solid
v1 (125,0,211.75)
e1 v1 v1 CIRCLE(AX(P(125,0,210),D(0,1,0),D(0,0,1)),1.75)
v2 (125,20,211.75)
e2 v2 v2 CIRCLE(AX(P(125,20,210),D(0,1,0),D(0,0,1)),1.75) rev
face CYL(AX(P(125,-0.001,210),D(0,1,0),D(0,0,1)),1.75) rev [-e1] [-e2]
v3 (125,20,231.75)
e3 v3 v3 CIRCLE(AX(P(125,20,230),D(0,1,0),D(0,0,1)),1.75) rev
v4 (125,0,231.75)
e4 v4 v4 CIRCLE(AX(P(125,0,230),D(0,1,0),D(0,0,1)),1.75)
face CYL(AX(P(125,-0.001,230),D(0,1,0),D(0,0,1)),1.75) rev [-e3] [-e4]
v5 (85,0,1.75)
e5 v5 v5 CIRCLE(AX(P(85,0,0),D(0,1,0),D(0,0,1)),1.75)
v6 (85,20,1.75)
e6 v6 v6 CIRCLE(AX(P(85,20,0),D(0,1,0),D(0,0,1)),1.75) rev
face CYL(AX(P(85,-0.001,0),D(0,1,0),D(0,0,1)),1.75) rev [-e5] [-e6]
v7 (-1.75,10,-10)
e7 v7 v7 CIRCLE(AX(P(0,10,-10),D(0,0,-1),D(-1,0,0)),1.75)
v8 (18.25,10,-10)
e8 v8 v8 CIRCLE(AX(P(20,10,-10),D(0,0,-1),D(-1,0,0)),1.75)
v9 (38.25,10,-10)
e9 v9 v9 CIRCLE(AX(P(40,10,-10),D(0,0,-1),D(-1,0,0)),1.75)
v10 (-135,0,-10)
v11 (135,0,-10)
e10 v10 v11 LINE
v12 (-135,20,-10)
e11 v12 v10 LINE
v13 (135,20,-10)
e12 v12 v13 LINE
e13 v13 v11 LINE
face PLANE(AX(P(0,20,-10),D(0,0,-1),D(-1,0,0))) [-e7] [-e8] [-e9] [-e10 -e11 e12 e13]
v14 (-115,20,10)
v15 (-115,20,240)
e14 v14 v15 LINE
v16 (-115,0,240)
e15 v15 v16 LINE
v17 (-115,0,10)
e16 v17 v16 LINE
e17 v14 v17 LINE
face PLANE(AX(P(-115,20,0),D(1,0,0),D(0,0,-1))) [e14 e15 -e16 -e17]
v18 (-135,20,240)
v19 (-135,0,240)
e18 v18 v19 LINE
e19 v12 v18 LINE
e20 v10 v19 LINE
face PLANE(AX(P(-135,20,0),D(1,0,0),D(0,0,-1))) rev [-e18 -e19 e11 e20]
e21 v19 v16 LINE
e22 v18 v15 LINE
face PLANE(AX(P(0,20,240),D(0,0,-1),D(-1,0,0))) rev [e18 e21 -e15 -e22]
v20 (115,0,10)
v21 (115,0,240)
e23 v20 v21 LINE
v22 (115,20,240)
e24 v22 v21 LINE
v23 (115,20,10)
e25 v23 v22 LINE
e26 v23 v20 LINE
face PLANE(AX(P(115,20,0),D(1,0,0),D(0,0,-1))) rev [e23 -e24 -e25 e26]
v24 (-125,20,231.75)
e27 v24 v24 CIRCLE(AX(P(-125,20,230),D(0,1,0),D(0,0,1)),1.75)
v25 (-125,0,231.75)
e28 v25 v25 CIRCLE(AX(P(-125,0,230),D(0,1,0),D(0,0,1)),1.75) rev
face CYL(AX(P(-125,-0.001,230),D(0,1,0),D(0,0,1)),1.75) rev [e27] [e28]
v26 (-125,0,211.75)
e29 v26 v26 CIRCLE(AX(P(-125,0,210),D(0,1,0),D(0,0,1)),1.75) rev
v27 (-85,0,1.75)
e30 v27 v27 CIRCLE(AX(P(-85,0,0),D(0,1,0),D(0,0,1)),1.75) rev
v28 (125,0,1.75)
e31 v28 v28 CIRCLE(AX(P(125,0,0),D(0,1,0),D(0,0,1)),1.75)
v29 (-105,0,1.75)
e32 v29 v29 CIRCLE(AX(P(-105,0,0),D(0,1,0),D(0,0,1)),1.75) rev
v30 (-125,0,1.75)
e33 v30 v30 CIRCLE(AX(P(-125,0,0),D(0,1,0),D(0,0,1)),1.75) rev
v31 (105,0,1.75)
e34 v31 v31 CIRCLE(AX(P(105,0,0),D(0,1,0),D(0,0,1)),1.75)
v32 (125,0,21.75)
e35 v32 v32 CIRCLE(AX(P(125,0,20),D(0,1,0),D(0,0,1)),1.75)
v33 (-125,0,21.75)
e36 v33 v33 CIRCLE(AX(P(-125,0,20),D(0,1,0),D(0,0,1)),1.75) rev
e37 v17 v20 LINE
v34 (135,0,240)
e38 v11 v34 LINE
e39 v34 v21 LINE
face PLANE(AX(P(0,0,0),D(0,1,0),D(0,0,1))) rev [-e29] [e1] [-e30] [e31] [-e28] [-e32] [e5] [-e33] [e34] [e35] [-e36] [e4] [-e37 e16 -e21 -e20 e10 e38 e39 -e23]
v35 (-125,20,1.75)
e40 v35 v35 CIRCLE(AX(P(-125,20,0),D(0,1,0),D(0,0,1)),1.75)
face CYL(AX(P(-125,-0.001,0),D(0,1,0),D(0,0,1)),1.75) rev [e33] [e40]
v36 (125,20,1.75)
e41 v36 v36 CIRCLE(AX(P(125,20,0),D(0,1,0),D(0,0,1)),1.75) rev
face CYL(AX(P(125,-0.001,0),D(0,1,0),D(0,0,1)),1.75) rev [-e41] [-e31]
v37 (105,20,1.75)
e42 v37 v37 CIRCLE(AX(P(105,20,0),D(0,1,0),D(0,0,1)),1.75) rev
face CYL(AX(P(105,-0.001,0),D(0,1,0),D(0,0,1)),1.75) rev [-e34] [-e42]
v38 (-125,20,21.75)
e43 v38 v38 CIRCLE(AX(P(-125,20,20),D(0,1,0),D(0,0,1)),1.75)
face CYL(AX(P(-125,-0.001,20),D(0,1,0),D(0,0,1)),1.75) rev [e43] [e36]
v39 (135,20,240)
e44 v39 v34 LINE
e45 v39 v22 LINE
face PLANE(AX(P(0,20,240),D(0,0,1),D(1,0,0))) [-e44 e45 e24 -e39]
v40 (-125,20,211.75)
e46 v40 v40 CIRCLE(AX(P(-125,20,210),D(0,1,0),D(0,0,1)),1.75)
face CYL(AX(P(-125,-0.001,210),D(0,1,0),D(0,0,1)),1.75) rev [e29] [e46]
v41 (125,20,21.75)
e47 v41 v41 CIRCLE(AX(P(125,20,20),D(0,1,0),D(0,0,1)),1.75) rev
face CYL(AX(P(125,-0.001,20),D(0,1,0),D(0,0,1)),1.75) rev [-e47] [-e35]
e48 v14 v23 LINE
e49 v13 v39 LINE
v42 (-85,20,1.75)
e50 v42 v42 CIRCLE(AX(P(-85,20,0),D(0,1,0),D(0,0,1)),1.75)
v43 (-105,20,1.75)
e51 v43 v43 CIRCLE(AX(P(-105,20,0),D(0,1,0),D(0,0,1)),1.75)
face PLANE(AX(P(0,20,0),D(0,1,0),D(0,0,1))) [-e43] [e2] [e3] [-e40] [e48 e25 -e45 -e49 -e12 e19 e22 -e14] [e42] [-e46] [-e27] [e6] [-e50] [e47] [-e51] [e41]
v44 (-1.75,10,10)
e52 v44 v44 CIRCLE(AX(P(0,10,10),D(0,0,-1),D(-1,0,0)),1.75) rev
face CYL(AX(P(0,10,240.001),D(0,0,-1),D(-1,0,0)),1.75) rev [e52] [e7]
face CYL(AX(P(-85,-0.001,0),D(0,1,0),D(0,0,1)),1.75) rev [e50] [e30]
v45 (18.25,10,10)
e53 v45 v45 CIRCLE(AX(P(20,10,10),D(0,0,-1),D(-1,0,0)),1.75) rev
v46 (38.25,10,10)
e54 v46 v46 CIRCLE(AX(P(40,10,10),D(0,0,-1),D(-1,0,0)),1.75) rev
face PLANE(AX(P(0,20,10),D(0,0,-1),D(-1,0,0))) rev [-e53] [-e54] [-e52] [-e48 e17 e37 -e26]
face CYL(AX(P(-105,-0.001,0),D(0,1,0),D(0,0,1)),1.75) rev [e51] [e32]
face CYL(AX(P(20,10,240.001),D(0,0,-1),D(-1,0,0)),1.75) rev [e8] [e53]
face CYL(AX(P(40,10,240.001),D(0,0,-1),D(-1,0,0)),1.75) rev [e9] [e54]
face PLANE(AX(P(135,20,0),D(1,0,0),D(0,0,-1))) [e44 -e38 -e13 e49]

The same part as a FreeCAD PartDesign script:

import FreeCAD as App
import Part
import Sketcher


def add_polygon(sketch, points):
    """Adds a closed chain of lines whose ends are joined by coincident constraints."""
    first, n = sketch.GeometryCount, len(points)
    for a, b in zip(points, points[1:] + points[:1]):
        sketch.addGeometry(Part.LineSegment(App.Vector(*a, 0), App.Vector(*b, 0)), False)
    for i in range(n):
        sketch.addConstraint(Sketcher.Constraint("Coincident", first + i, 2, first + (i + 1) % n, 1))

doc = App.newDocument("Part")
params = doc.addObject("Spreadsheet::Sheet", "Params")
for row, (alias, value) in enumerate([
    ("sketch1_width", "20 mm"),
    ("sketch1_width2", "230 mm"),
    ("sketch1_height", "250 mm"),
    ("pad1_length", "20 mm"),
    ("sketch2_diameter", "3.5 mm"),
    ("sketch3_diameter", "3.5 mm"),
    ("sketch4_diameter", "3.5 mm"),
    ("sketch5_diameter", "3.5 mm"),
    ("sketch6_diameter", "3.5 mm"),
    ("sketch7_diameter", "3.5 mm"),
    ("sketch8_diameter", "3.5 mm"),
    ("sketch9_diameter", "3.5 mm"),
    ("sketch10_diameter", "3.5 mm"),
    ("sketch11_diameter", "3.5 mm"),
    ("sketch12_diameter", "3.5 mm"),
    ("sketch13_diameter", "3.5 mm"),
    ("sketch14_diameter", "3.5 mm"),
    ("sketch15_diameter", "3.5 mm"),
    ("sketch16_diameter", "3.5 mm"),
], start=1):
    params.set(f"A{row}", alias)
    params.set(f"B{row}", "=" + value)
    params.setAlias(f"B{row}", alias)

body = doc.addObject("PartDesign::Body", "Body")

sketch1 = body.newObject("Sketcher::SketchObject", "Sketch")
sketch1.AttachmentSupport = (doc.getObject("XZ_Plane"), [""])
sketch1.MapMode = "FlatFace"
add_polygon(sketch1, [(-135, -10), (-135, 240), (-115, 240), (-115, 10), (115, 10), (115, 240), (135, 240), (135, -10)])
sketch1.addConstraint([
    Sketcher.Constraint("Vertical", 0),
    Sketcher.Constraint("Horizontal", 1),
    Sketcher.Constraint("Vertical", 2),
    Sketcher.Constraint("Horizontal", 3),
    Sketcher.Constraint("Vertical", 4),
    Sketcher.Constraint("Horizontal", 5),
    Sketcher.Constraint("Vertical", 6),
    Sketcher.Constraint("Horizontal", 7),
    Sketcher.Constraint("Symmetric", 1, 2, 4, 2, -2),
    Sketcher.Constraint("Equal", 1, 5),
    Sketcher.Constraint("Equal", 3, 2),
    Sketcher.Constraint("DistanceX", 1, 1, 1, 2, 20.0),
    Sketcher.Constraint("DistanceX", 3, 1, 3, 2, 230.0),
    Sketcher.Constraint("DistanceY", 0, 1, 0, 2, 250.0),
    Sketcher.Constraint("DistanceY", -1, 1, 0, 2, 240.0),
])
sketch1.setExpression("Constraints[19]", "Params.sketch1_width")
sketch1.setExpression("Constraints[20]", "Params.sketch1_width2")
sketch1.setExpression("Constraints[21]", "Params.sketch1_height")
pad1 = body.newObject("PartDesign::Pad", "Pad")
pad1.Profile = sketch1
pad1.setExpression("Length", "Params.pad1_length")
pad1.Reversed = True

sketch2 = body.newObject("Sketcher::SketchObject", "Sketch001")
sketch2.AttachmentSupport = (doc.getObject("XZ_Plane"), [""])
sketch2.MapMode = "FlatFace"
sketch2.AttachmentOffset = App.Placement(App.Vector(0, 0, -20), App.Rotation())
sketch2.addGeometry(Part.Circle(App.Vector(-125, 0, 0), App.Vector(0, 0, 1), 1.75), False)
sketch2.addConstraint([
    Sketcher.Constraint("PointOnObject", 0, 3, -1),
    Sketcher.Constraint("Diameter", 0, 3.5),
    Sketcher.Constraint("DistanceX", 0, 3, -1, 1, 125.0),
])
sketch2.setExpression("Constraints[1]", "Params.sketch2_diameter")
pocket1 = body.newObject("PartDesign::Pocket", "Pocket")
pocket1.Profile = sketch2
pocket1.Type = "UpToFirst"
pocket1.Reversed = True

sketch3 = body.newObject("Sketcher::SketchObject", "Sketch002")
sketch3.AttachmentSupport = (doc.getObject("XZ_Plane"), [""])
sketch3.MapMode = "FlatFace"
sketch3.AttachmentOffset = App.Placement(App.Vector(0, 0, -20), App.Rotation())
sketch3.addGeometry(Part.Circle(App.Vector(-125, 20, 0), App.Vector(0, 0, 1), 1.75), False)
sketch3.addConstraint([
    Sketcher.Constraint("Diameter", 0, 3.5),
    Sketcher.Constraint("DistanceX", 0, 3, -1, 1, 125.0),
    Sketcher.Constraint("DistanceY", -1, 1, 0, 3, 20.0),
])
sketch3.setExpression("Constraints[0]", "Params.sketch3_diameter")
pocket2 = body.newObject("PartDesign::Pocket", "Pocket001")
pocket2.Profile = sketch3
pocket2.Type = "UpToFirst"
pocket2.Reversed = True

sketch4 = body.newObject("Sketcher::SketchObject", "Sketch003")
sketch4.AttachmentSupport = (doc.getObject("XZ_Plane"), [""])
sketch4.MapMode = "FlatFace"
sketch4.AttachmentOffset = App.Placement(App.Vector(0, 0, -20), App.Rotation())
sketch4.addGeometry(Part.Circle(App.Vector(-105, 0, 0), App.Vector(0, 0, 1), 1.75), False)
sketch4.addConstraint([
    Sketcher.Constraint("PointOnObject", 0, 3, -1),
    Sketcher.Constraint("Diameter", 0, 3.5),
    Sketcher.Constraint("DistanceX", 0, 3, -1, 1, 105.0),
])
sketch4.setExpression("Constraints[1]", "Params.sketch4_diameter")
pocket3 = body.newObject("PartDesign::Pocket", "Pocket002")
pocket3.Profile = sketch4
pocket3.Type = "UpToFirst"
pocket3.Reversed = True

sketch5 = body.newObject("Sketcher::SketchObject", "Sketch004")
sketch5.AttachmentSupport = (doc.getObject("XZ_Plane"), [""])
sketch5.MapMode = "FlatFace"
sketch5.AttachmentOffset = App.Placement(App.Vector(0, 0, -20), App.Rotation())
sketch5.addGeometry(Part.Circle(App.Vector(-125, 210, 0), App.Vector(0, 0, 1), 1.75), False)
sketch5.addConstraint([
    Sketcher.Constraint("Diameter", 0, 3.5),
    Sketcher.Constraint("DistanceX", 0, 3, -1, 1, 125.0),
    Sketcher.Constraint("DistanceY", -1, 1, 0, 3, 210.0),
])
sketch5.setExpression("Constraints[0]", "Params.sketch5_diameter")
pocket4 = body.newObject("PartDesign::Pocket", "Pocket003")
pocket4.Profile = sketch5
pocket4.Type = "UpToFirst"
pocket4.Reversed = True

sketch6 = body.newObject("Sketcher::SketchObject", "Sketch005")
sketch6.AttachmentSupport = (doc.getObject("XZ_Plane"), [""])
sketch6.MapMode = "FlatFace"
sketch6.AttachmentOffset = App.Placement(App.Vector(0, 0, -20), App.Rotation())
sketch6.addGeometry(Part.Circle(App.Vector(-125, 230, 0), App.Vector(0, 0, 1), 1.75), False)
sketch6.addConstraint([
    Sketcher.Constraint("Diameter", 0, 3.5),
    Sketcher.Constraint("DistanceX", 0, 3, -1, 1, 125.0),
    Sketcher.Constraint("DistanceY", -1, 1, 0, 3, 230.0),
])
sketch6.setExpression("Constraints[0]", "Params.sketch6_diameter")
pocket5 = body.newObject("PartDesign::Pocket", "Pocket004")
pocket5.Profile = sketch6
pocket5.Type = "UpToFirst"
pocket5.Reversed = True

sketch7 = body.newObject("Sketcher::SketchObject", "Sketch006")
sketch7.AttachmentSupport = (doc.getObject("XZ_Plane"), [""])
sketch7.MapMode = "FlatFace"
sketch7.AttachmentOffset = App.Placement(App.Vector(0, 0, -20), App.Rotation())
sketch7.addGeometry(Part.Circle(App.Vector(125, 210, 0), App.Vector(0, 0, 1), 1.75), False)
sketch7.addConstraint([
    Sketcher.Constraint("Diameter", 0, 3.5),
    Sketcher.Constraint("DistanceX", -1, 1, 0, 3, 125.0),
    Sketcher.Constraint("DistanceY", -1, 1, 0, 3, 210.0),
])
sketch7.setExpression("Constraints[0]", "Params.sketch7_diameter")
pocket6 = body.newObject("PartDesign::Pocket", "Pocket005")
pocket6.Profile = sketch7
pocket6.Type = "UpToFirst"
pocket6.Reversed = True

sketch8 = body.newObject("Sketcher::SketchObject", "Sketch007")
sketch8.AttachmentSupport = (doc.getObject("XZ_Plane"), [""])
sketch8.MapMode = "FlatFace"
sketch8.AttachmentOffset = App.Placement(App.Vector(0, 0, -20), App.Rotation())
sketch8.addGeometry(Part.Circle(App.Vector(125, 230, 0), App.Vector(0, 0, 1), 1.75), False)
sketch8.addConstraint([
    Sketcher.Constraint("Diameter", 0, 3.5),
    Sketcher.Constraint("DistanceX", -1, 1, 0, 3, 125.0),
    Sketcher.Constraint("DistanceY", -1, 1, 0, 3, 230.0),
])
sketch8.setExpression("Constraints[0]", "Params.sketch8_diameter")
pocket7 = body.newObject("PartDesign::Pocket", "Pocket006")
pocket7.Profile = sketch8
pocket7.Type = "UpToFirst"
pocket7.Reversed = True

sketch9 = body.newObject("Sketcher::SketchObject", "Sketch008")
sketch9.AttachmentSupport = (doc.getObject("XZ_Plane"), [""])
sketch9.MapMode = "FlatFace"
sketch9.AttachmentOffset = App.Placement(App.Vector(0, 0, -20), App.Rotation())
sketch9.addGeometry(Part.Circle(App.Vector(125, 0, 0), App.Vector(0, 0, 1), 1.75), False)
sketch9.addConstraint([
    Sketcher.Constraint("PointOnObject", 0, 3, -1),
    Sketcher.Constraint("Diameter", 0, 3.5),
    Sketcher.Constraint("DistanceX", -1, 1, 0, 3, 125.0),
])
sketch9.setExpression("Constraints[1]", "Params.sketch9_diameter")
pocket8 = body.newObject("PartDesign::Pocket", "Pocket007")
pocket8.Profile = sketch9
pocket8.Type = "UpToFirst"
pocket8.Reversed = True

sketch10 = body.newObject("Sketcher::SketchObject", "Sketch009")
sketch10.AttachmentSupport = (doc.getObject("XZ_Plane"), [""])
sketch10.MapMode = "FlatFace"
sketch10.AttachmentOffset = App.Placement(App.Vector(0, 0, -20), App.Rotation())
sketch10.addGeometry(Part.Circle(App.Vector(125, 20, 0), App.Vector(0, 0, 1), 1.75), False)
sketch10.addConstraint([
    Sketcher.Constraint("Diameter", 0, 3.5),
    Sketcher.Constraint("DistanceX", -1, 1, 0, 3, 125.0),
    Sketcher.Constraint("DistanceY", -1, 1, 0, 3, 20.0),
])
sketch10.setExpression("Constraints[0]", "Params.sketch10_diameter")
pocket9 = body.newObject("PartDesign::Pocket", "Pocket008")
pocket9.Profile = sketch10
pocket9.Type = "UpToFirst"
pocket9.Reversed = True

sketch11 = body.newObject("Sketcher::SketchObject", "Sketch010")
sketch11.AttachmentSupport = (doc.getObject("XZ_Plane"), [""])
sketch11.MapMode = "FlatFace"
sketch11.AttachmentOffset = App.Placement(App.Vector(0, 0, -20), App.Rotation())
sketch11.addGeometry(Part.Circle(App.Vector(105, 0, 0), App.Vector(0, 0, 1), 1.75), False)
sketch11.addConstraint([
    Sketcher.Constraint("PointOnObject", 0, 3, -1),
    Sketcher.Constraint("Diameter", 0, 3.5),
    Sketcher.Constraint("DistanceX", -1, 1, 0, 3, 105.0),
])
sketch11.setExpression("Constraints[1]", "Params.sketch11_diameter")
pocket10 = body.newObject("PartDesign::Pocket", "Pocket009")
pocket10.Profile = sketch11
pocket10.Type = "UpToFirst"
pocket10.Reversed = True

sketch12 = body.newObject("Sketcher::SketchObject", "Sketch011")
sketch12.AttachmentSupport = (doc.getObject("XZ_Plane"), [""])
sketch12.MapMode = "FlatFace"
sketch12.AttachmentOffset = App.Placement(App.Vector(0, 0, -20), App.Rotation())
sketch12.addGeometry(Part.Circle(App.Vector(85, 0, 0), App.Vector(0, 0, 1), 1.75), False)
sketch12.addConstraint([
    Sketcher.Constraint("PointOnObject", 0, 3, -1),
    Sketcher.Constraint("Diameter", 0, 3.5),
    Sketcher.Constraint("DistanceX", -1, 1, 0, 3, 85.0),
])
sketch12.setExpression("Constraints[1]", "Params.sketch12_diameter")
pocket11 = body.newObject("PartDesign::Pocket", "Pocket010")
pocket11.Profile = sketch12
pocket11.Type = "UpToFirst"
pocket11.Reversed = True

sketch13 = body.newObject("Sketcher::SketchObject", "Sketch012")
sketch13.AttachmentSupport = (doc.getObject("XZ_Plane"), [""])
sketch13.MapMode = "FlatFace"
sketch13.AttachmentOffset = App.Placement(App.Vector(0, 0, -20), App.Rotation())
sketch13.addGeometry(Part.Circle(App.Vector(-85, 0, 0), App.Vector(0, 0, 1), 1.75), False)
sketch13.addConstraint([
    Sketcher.Constraint("PointOnObject", 0, 3, -1),
    Sketcher.Constraint("Diameter", 0, 3.5),
    Sketcher.Constraint("DistanceX", 0, 3, -1, 1, 85.0),
])
sketch13.setExpression("Constraints[1]", "Params.sketch13_diameter")
pocket12 = body.newObject("PartDesign::Pocket", "Pocket011")
pocket12.Profile = sketch13
pocket12.Type = "UpToFirst"
pocket12.Reversed = True

sketch14 = body.newObject("Sketcher::SketchObject", "Sketch013")
sketch14.AttachmentSupport = (doc.getObject("XY_Plane"), [""])
sketch14.MapMode = "FlatFace"
sketch14.AttachmentOffset = App.Placement(App.Vector(0, 0, -10), App.Rotation())
sketch14.addGeometry(Part.Circle(App.Vector(20, 10, 0), App.Vector(0, 0, 1), 1.75), False)
sketch14.addConstraint([
    Sketcher.Constraint("Diameter", 0, 3.5),
    Sketcher.Constraint("DistanceX", -1, 1, 0, 3, 20.0),
    Sketcher.Constraint("DistanceY", -1, 1, 0, 3, 10.0),
])
sketch14.setExpression("Constraints[0]", "Params.sketch14_diameter")
pocket13 = body.newObject("PartDesign::Pocket", "Pocket012")
pocket13.Profile = sketch14
pocket13.Type = "UpToFirst"
pocket13.Reversed = True

sketch15 = body.newObject("Sketcher::SketchObject", "Sketch014")
sketch15.AttachmentSupport = (doc.getObject("XY_Plane"), [""])
sketch15.MapMode = "FlatFace"
sketch15.AttachmentOffset = App.Placement(App.Vector(0, 0, -10), App.Rotation())
sketch15.addGeometry(Part.Circle(App.Vector(0, 10, 0), App.Vector(0, 0, 1), 1.75), False)
sketch15.addConstraint([
    Sketcher.Constraint("PointOnObject", 0, 3, -2),
    Sketcher.Constraint("Diameter", 0, 3.5),
    Sketcher.Constraint("DistanceY", -1, 1, 0, 3, 10.0),
])
sketch15.setExpression("Constraints[1]", "Params.sketch15_diameter")
pocket14 = body.newObject("PartDesign::Pocket", "Pocket013")
pocket14.Profile = sketch15
pocket14.Type = "UpToFirst"
pocket14.Reversed = True

sketch16 = body.newObject("Sketcher::SketchObject", "Sketch015")
sketch16.AttachmentSupport = (doc.getObject("XY_Plane"), [""])
sketch16.MapMode = "FlatFace"
sketch16.AttachmentOffset = App.Placement(App.Vector(0, 0, -10), App.Rotation())
sketch16.addGeometry(Part.Circle(App.Vector(40, 10, 0), App.Vector(0, 0, 1), 1.75), False)
sketch16.addConstraint([
    Sketcher.Constraint("Diameter", 0, 3.5),
    Sketcher.Constraint("DistanceX", -1, 1, 0, 3, 40.0),
    Sketcher.Constraint("DistanceY", -1, 1, 0, 3, 10.0),
])
sketch16.setExpression("Constraints[0]", "Params.sketch16_diameter")
pocket15 = body.newObject("PartDesign::Pocket", "Pocket014")
pocket15.Profile = sketch16
pocket15.Type = "UpToFirst"
pocket15.Reversed = True

doc.recompute()
